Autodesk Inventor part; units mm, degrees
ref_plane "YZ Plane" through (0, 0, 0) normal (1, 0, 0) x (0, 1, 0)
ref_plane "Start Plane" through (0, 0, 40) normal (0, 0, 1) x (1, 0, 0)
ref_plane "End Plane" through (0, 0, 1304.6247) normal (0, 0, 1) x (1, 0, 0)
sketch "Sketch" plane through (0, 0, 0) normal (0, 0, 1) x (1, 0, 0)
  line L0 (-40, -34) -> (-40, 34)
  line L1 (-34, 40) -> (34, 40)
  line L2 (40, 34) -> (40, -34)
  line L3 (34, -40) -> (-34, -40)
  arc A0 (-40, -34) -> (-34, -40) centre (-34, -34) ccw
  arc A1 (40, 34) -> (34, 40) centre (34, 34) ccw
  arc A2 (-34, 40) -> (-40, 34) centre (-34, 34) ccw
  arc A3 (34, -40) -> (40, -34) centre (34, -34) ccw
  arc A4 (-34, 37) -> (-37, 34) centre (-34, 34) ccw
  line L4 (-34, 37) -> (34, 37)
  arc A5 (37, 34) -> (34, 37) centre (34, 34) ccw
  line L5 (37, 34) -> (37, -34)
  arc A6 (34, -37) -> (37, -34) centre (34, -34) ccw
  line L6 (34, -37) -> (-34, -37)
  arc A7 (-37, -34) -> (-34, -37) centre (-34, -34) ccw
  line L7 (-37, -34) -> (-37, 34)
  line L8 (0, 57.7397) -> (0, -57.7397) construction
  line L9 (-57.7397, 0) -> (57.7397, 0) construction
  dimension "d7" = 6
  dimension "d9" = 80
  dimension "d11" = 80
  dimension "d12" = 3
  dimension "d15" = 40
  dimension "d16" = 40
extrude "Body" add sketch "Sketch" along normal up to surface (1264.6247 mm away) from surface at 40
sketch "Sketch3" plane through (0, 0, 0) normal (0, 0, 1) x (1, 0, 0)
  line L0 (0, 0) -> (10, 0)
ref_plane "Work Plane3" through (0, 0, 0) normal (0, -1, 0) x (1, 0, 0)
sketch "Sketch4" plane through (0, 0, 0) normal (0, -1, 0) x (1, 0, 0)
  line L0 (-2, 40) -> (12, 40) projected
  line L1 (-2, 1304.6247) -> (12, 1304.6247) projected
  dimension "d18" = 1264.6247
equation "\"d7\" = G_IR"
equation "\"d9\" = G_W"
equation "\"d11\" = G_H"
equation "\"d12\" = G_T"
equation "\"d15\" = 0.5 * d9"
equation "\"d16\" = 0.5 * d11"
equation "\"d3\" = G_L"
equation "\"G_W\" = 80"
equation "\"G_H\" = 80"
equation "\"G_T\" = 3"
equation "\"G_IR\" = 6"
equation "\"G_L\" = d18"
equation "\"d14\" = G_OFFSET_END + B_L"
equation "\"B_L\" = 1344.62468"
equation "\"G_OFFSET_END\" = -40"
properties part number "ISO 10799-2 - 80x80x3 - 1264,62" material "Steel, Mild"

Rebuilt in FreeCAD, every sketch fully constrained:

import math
import FreeCAD as App
import Part
import Sketcher
from FreeCAD import Vector

doc = App.newDocument("Part")
params = doc.addObject("Spreadsheet::Sheet", "Params")
for row, (alias, value) in enumerate([
    ("sketch1_radius", "6 mm"),
    ("sketch1_radius2", "3 mm"),
    ("pad1_length", "1264.6247 mm"),
], start=1):
    params.set(f"A{row}", alias)
    params.set(f"B{row}", "=" + value)
    params.setAlias(f"B{row}", alias)

body = doc.addObject("PartDesign::Body", "Body")

sketch1 = body.newObject("Sketcher::SketchObject", "Sketch")
sketch1.AttachmentSupport = (doc.getObject("XY_Plane"), [""])
sketch1.MapMode = "FlatFace"
sketch1.AttachmentOffset = App.Placement(Vector(0, 0, 40), App.Rotation())
sketch1.addGeometry([
    Part.LineSegment(Vector(-40, 34, 0), Vector(-40, -34, 0)),
    Part.ArcOfCircle(Part.Circle(Vector(-34, -34, 0), Vector(0, 0, 1), 6), math.radians(180), math.radians(270)),
    Part.LineSegment(Vector(-34, -40, 0), Vector(34, -40, 0)),
    Part.ArcOfCircle(Part.Circle(Vector(34, -34, 0), Vector(0, 0, 1), 6), math.radians(-90), math.radians(0)),
    Part.LineSegment(Vector(40, -34, 0), Vector(40, 34, 0)),
    Part.ArcOfCircle(Part.Circle(Vector(34, 34, 0), Vector(0, 0, 1), 6), math.radians(0), math.radians(90)),
    Part.LineSegment(Vector(34, 40, 0), Vector(-34, 40, 0)),
    Part.ArcOfCircle(Part.Circle(Vector(-34, 34, 0), Vector(0, 0, 1), 6), math.radians(90), math.radians(180)),
    Part.ArcOfCircle(Part.Circle(Vector(-34, 34, 0), Vector(0, 0, 1), 3), math.radians(90), math.radians(180)),
    Part.LineSegment(Vector(-34, 37, 0), Vector(34, 37, 0)),
    Part.ArcOfCircle(Part.Circle(Vector(34, 34, 0), Vector(0, 0, 1), 3), math.radians(0), math.radians(90)),
    Part.LineSegment(Vector(37, 34, 0), Vector(37, -34, 0)),
    Part.ArcOfCircle(Part.Circle(Vector(34, -34, 0), Vector(0, 0, 1), 3), math.radians(-90), math.radians(0)),
    Part.LineSegment(Vector(34, -37, 0), Vector(-34, -37, 0)),
    Part.ArcOfCircle(Part.Circle(Vector(-34, -34, 0), Vector(0, 0, 1), 3), math.radians(180), math.radians(270)),
    Part.LineSegment(Vector(-37, -34, 0), Vector(-37, 34, 0)),
], False)
sketch1.addConstraint([
    Sketcher.Constraint("Tangent", 0, 2, 1, 1),
    Sketcher.Constraint("Tangent", 1, 2, 2, 1),
    Sketcher.Constraint("Tangent", 2, 2, 3, 1),
    Sketcher.Constraint("Tangent", 3, 2, 4, 1),
    Sketcher.Constraint("Tangent", 4, 2, 5, 1),
    Sketcher.Constraint("Tangent", 5, 2, 6, 1),
    Sketcher.Constraint("Tangent", 6, 2, 7, 1),
    Sketcher.Constraint("Tangent", 7, 2, 0, 1),
    Sketcher.Constraint("Tangent", 8, 1, 9, 1),
    Sketcher.Constraint("Tangent", 9, 2, 10, 2),
    Sketcher.Constraint("Tangent", 10, 1, 11, 1),
    Sketcher.Constraint("Tangent", 11, 2, 12, 2),
    Sketcher.Constraint("Tangent", 12, 1, 13, 1),
    Sketcher.Constraint("Tangent", 13, 2, 14, 2),
    Sketcher.Constraint("Tangent", 14, 1, 15, 1),
    Sketcher.Constraint("Tangent", 15, 2, 8, 2),
    Sketcher.Constraint("Vertical", 0),
    Sketcher.Constraint("Horizontal", 2),
    Sketcher.Constraint("Vertical", 4),
    Sketcher.Constraint("Horizontal", 6),
    Sketcher.Constraint("Horizontal", 9),
    Sketcher.Constraint("Vertical", 11),
    Sketcher.Constraint("Horizontal", 13),
    Sketcher.Constraint("Vertical", 15),
    Sketcher.Constraint("Coincident", 8, 3, 7, 3),
    Sketcher.Constraint("Coincident", 10, 3, 5, 3),
    Sketcher.Constraint("Coincident", 12, 3, 3, 3),
    Sketcher.Constraint("Equal", 1, 3),
    Sketcher.Constraint("Equal", 3, 5),
    Sketcher.Constraint("Equal", 5, 7),
    Sketcher.Constraint("Equal", 12, 14),
    Sketcher.Constraint("Symmetric", 1, 3, 5, 3, -1, 1),
    Sketcher.Constraint("Equal", 13, 0),
    Sketcher.Constraint("Radius", 1, 6.0),
    Sketcher.Constraint("Radius", 8, 3.0),
    Sketcher.Constraint("DistanceX", 0, 2, -1, 1, 40.0),
])
sketch1.setExpression("Constraints[33]", "Params.sketch1_radius")
sketch1.setExpression("Constraints[34]", "Params.sketch1_radius2")
pad1 = body.newObject("PartDesign::Pad", "Pad")
pad1.Profile = sketch1
pad1.setExpression("Length", "Params.pad1_length")

doc.recompute()
